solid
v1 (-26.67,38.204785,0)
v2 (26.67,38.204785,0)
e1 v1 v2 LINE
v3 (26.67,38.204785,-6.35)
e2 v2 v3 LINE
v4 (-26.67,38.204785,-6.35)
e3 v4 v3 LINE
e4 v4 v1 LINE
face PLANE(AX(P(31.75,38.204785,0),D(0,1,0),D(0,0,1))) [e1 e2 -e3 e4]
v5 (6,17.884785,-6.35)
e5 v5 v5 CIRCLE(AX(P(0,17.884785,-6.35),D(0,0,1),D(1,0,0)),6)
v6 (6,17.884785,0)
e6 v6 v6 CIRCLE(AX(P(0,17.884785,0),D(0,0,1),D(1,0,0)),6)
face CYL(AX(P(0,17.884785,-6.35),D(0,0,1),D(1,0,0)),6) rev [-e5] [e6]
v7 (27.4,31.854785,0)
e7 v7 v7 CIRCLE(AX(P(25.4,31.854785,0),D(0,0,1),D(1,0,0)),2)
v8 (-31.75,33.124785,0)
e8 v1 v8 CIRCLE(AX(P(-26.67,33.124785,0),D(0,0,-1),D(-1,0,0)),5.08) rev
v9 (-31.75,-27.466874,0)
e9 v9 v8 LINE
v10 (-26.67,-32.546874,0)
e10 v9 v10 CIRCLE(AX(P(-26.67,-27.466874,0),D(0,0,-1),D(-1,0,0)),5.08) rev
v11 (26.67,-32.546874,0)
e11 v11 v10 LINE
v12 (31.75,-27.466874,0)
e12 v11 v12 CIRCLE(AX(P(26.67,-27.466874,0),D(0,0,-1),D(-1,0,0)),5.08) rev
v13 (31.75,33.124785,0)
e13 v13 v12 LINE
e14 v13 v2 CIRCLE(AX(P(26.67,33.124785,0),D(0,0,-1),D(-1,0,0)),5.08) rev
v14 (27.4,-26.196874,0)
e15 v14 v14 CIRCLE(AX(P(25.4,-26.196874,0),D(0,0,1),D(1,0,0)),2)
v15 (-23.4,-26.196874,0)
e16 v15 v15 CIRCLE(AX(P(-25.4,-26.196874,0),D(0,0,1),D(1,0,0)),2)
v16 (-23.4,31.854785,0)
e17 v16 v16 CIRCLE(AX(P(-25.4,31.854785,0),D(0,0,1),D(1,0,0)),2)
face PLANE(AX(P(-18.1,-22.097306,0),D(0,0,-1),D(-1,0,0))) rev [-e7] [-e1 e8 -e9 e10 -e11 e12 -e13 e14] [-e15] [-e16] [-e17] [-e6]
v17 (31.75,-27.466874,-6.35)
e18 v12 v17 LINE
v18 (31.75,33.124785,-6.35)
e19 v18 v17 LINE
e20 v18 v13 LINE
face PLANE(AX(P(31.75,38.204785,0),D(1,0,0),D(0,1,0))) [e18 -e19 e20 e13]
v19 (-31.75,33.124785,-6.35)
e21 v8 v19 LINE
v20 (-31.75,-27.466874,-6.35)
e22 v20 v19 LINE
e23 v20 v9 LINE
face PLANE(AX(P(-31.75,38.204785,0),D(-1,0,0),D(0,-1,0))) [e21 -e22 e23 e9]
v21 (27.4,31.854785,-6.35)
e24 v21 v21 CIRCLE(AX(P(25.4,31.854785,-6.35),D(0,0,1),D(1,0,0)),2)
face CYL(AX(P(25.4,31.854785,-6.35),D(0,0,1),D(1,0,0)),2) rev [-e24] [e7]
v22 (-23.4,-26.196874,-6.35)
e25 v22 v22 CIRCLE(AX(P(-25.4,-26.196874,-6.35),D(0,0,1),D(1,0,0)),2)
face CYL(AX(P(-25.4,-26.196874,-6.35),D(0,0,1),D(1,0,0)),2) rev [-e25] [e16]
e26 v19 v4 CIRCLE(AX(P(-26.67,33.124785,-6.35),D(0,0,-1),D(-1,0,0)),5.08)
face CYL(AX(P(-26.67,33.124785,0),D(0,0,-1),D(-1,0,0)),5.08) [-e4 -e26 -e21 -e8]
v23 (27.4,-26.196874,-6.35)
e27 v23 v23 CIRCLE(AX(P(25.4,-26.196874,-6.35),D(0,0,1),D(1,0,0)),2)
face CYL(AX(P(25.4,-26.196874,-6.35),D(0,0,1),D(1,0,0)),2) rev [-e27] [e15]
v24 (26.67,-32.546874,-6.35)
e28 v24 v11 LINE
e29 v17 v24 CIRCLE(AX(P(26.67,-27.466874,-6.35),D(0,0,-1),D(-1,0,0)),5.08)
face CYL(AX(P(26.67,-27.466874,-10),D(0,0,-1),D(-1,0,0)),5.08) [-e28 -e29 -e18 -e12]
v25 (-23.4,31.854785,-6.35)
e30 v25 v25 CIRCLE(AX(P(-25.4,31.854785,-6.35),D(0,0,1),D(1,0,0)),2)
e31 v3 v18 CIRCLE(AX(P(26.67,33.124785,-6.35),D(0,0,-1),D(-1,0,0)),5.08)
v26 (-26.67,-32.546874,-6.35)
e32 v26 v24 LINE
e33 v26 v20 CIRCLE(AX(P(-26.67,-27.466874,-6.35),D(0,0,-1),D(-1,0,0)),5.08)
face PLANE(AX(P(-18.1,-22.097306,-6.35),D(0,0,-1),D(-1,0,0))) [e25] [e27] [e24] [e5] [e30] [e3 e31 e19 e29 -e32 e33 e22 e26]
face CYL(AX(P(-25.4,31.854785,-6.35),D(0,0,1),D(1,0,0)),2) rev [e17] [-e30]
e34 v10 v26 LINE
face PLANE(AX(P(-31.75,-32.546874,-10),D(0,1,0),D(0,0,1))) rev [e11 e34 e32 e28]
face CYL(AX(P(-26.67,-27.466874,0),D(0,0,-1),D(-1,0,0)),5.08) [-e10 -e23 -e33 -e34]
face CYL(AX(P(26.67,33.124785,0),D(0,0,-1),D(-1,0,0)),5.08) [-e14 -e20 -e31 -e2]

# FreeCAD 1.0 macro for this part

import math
import FreeCAD as App
import Part
import Sketcher
from FreeCAD import Vector
Q = App.Units.Quantity


def edges_at(feature, points):
    """Names of the edges that pass closest to the given points."""
    edges = feature.Shape.Edges
    near = lambda p: min(range(len(edges)), key=lambda i: edges[i].distToShape(Part.Vertex(*p))[0])
    return sorted({f"Edge{near(p) + 1}" for p in points})


def add_polygon(sketch, points):
    """Adds a closed chain of lines whose ends are joined by coincident constraints."""
    first, n = sketch.GeometryCount, len(points)
    for a, b in zip(points, points[1:] + points[:1]):
        sketch.addGeometry(Part.LineSegment(App.Vector(*a, 0), App.Vector(*b, 0)), False)
    for i in range(n):
        sketch.addConstraint(Sketcher.Constraint("Coincident", first + i, 2, first + (i + 1) % n, 1))

doc = App.newDocument("Part")
body = doc.addObject("PartDesign::Body", "Body")

# Sketch on XY plane
sketch1 = body.newObject("Sketcher::SketchObject", "Sketch")
sketch1.AttachmentSupport = (doc.getObject("XY_Plane"), [""])
sketch1.MapMode = "FlatFace"
sketch1.addGeometry([
    Part.LineSegment(Vector(-14.9, 29.8, 0), Vector(-19.7, 23.3, 0)),  # 0
    Part.ArcOfCircle(Part.Circle(Vector(-18.1, 22.1, 0), Vector(0, 0, 1), 2), math.radians(143), math.radians(180)),  # 1
    Part.LineSegment(Vector(-20.1, 22.1, 0), Vector(-20.1, -22.1, 0)),  # 2
    Part.ArcOfCircle(Part.Circle(Vector(-18.1, -22.1, 0), Vector(0, 0, 1), 2), math.radians(-180), math.radians(-143)),  # 3
    Part.LineSegment(Vector(-19.7, -23.3, 0), Vector(-14.9, -29.8, 0)),  # 4
    Part.ArcOfCircle(Part.Circle(Vector(-13.3, -28.5, 0), Vector(0, 0, 1), 2), math.radians(-143), math.radians(-90)),  # 5
    Part.LineSegment(Vector(-13.3, -30.6, 0), Vector(13.3, -30.6, 0)),  # 6
    Part.ArcOfCircle(Part.Circle(Vector(13.3, -28.5, 0), Vector(0, 0, 1), 2), math.radians(-90), math.radians(-37)),  # 7
    Part.LineSegment(Vector(14.9, -29.8, 0), Vector(19.7, -23.3, 0)),  # 8
    Part.ArcOfCircle(Part.Circle(Vector(18.1, -22.1, 0), Vector(0, 0, 1), 2), math.radians(-37), math.radians(0)),  # 9
    Part.LineSegment(Vector(20.1, -22.1, 0), Vector(20.1, 22.1, 0)),  # 10
    Part.ArcOfCircle(Part.Circle(Vector(18.1, 22.1, 0), Vector(0, 0, 1), 2), math.radians(0), math.radians(37)),  # 11
    Part.LineSegment(Vector(19.7, 23.3, 0), Vector(14.9, 29.8, 0)),  # 12
    Part.ArcOfCircle(Part.Circle(Vector(13.3, 28.5, 0), Vector(0, 0, 1), 2), math.radians(37), math.radians(90)),  # 13
    Part.LineSegment(Vector(13.3, 30.6, 0), Vector(-13.3, 30.6, 0)),  # 14
    Part.ArcOfCircle(Part.Circle(Vector(-13.3, 28.5, 0), Vector(0, 0, 1), 2), math.radians(90), math.radians(143)),  # 15
], False)
sketch1.addConstraint([
    Sketcher.Constraint("Tangent", 0, 2, 1, 1),
    Sketcher.Constraint("Tangent", 1, 2, 2, 1),
    Sketcher.Constraint("Tangent", 2, 2, 3, 1),
    Sketcher.Constraint("Tangent", 3, 2, 4, 1),
    Sketcher.Constraint("Tangent", 4, 2, 5, 1),
    Sketcher.Constraint("Tangent", 5, 2, 6, 1),
    Sketcher.Constraint("Tangent", 6, 2, 7, 1),
    Sketcher.Constraint("Tangent", 7, 2, 8, 1),
    Sketcher.Constraint("Tangent", 8, 2, 9, 1),
    Sketcher.Constraint("Tangent", 9, 2, 10, 1),
    Sketcher.Constraint("Tangent", 10, 2, 11, 1),
    Sketcher.Constraint("Tangent", 11, 2, 12, 1),
    Sketcher.Constraint("Tangent", 12, 2, 13, 1),
    Sketcher.Constraint("Tangent", 13, 2, 14, 1),
    Sketcher.Constraint("Tangent", 14, 2, 15, 1),
    Sketcher.Constraint("Tangent", 15, 2, 0, 1),
    Sketcher.Constraint("Vertical", 2),
    Sketcher.Constraint("Horizontal", 6),
    Sketcher.Constraint("Vertical", 10),
    Sketcher.Constraint("Horizontal", 14),
    Sketcher.Constraint("Equal", 1, 3),
    Sketcher.Constraint("Equal", 3, 5),
    Sketcher.Constraint("Equal", 5, 7),
    Sketcher.Constraint("Equal", 7, 9),
    Sketcher.Constraint("Equal", 9, 11),
    Sketcher.Constraint("Equal", 11, 13),
    Sketcher.Constraint("Equal", 13, 15),
    Sketcher.Constraint("Symmetric", 1, 3, 9, 3, -1, 1),
    Sketcher.Constraint("Symmetric", 5, 3, 13, 3, -1, 1),
    Sketcher.Constraint("Symmetric", 4, 2, 7, 2, -2),
    Sketcher.Constraint("Symmetric", 0, 2, 11, 2, -2),
    Sketcher.Constraint("Radius", 1, Q("2 mm")),
    Sketcher.Constraint("DistanceX", 6, 1, 6, 2, Q("26.50231 mm")),
    Sketcher.Constraint("DistanceX", 1, 3, -1, 1, Q("18.1 mm")),
    Sketcher.Constraint("DistanceY", 5, 3, -1, 1, Q("28.55 mm")),
    Sketcher.Constraint("DistanceX", 4, 2, 7, 3, Q("28.1012 mm")),
])
pad1 = body.newObject("PartDesign::Pad", "Pad")
pad1.Profile = sketch1
pad1.Length = Q("0.25 in")
pad1.Reversed = True

# Sketch on XY plane
sketch2 = body.newObject("Sketcher::SketchObject", "Sketch001")
sketch2.AttachmentSupport = (doc.getObject("XY_Plane"), [""])
sketch2.MapMode = "FlatFace"
sketch2.AttachmentOffset = App.Placement(Vector(0, 0, -0.25 * 25.4), App.Rotation())
sketch2.addGeometry([
    Part.Circle(Vector(-17.3, 21.9, 0), Vector(0, 0, 1), 1.4),  # 0
    Part.Circle(Vector(-17.3, -0.1, 0), Vector(0, 0, 1), 1.4),  # 1
    Part.Circle(Vector(-17.3, -22.1, 0), Vector(0, 0, 1), 1.4),  # 2
    Part.Circle(Vector(-11, -27.8, 0), Vector(0, 0, 1), 1.4),  # 3
    Part.Circle(Vector(11, -27.8, 0), Vector(0, 0, 1), 1.4),  # 4
    Part.Circle(Vector(17.3, -22.1, 0), Vector(0, 0, 1), 1.4),  # 5
    Part.Circle(Vector(17.3, -0.1, 0), Vector(0, 0, 1), 1.4),  # 6
    Part.Circle(Vector(17.3, 21.9, 0), Vector(0, 0, 1), 1.4),  # 7
], False)
sketch2.addConstraint([
    Sketcher.Constraint("Equal", 0, 1),
    Sketcher.Constraint("Equal", 1, 2),
    Sketcher.Constraint("Equal", 3, 4),
    Sketcher.Constraint("Equal", 2, 5),
    Sketcher.Constraint("Equal", 5, 6),
    Sketcher.Constraint("Equal", 6, 7),
    Sketcher.Constraint("Symmetric", 3, 3, 4, 3, -2),
    Sketcher.Constraint("Symmetric", 2, 3, 5, 3, -2),
    Sketcher.Constraint("Symmetric", 1, 3, 6, 3, -2),
    Sketcher.Constraint("Symmetric", 0, 3, 7, 3, -2),
    Sketcher.Constraint("Vertical", 0, 3, 1, 3),
    Sketcher.Constraint("Vertical", 1, 3, 2, 3),
    Sketcher.Constraint("Diameter", 0, Q("2.7 mm")),
    Sketcher.Constraint("Diameter", 3, Q("2.77 mm")),
    Sketcher.Constraint("DistanceX", 0, 3, -1, 1, Q("17.3 mm")),
    Sketcher.Constraint("DistanceX", 3, 3, -1, 1, Q("11 mm")),
    Sketcher.Constraint("DistanceY", 3, 3, -1, 1, Q("27.75 mm")),
    Sketcher.Constraint("DistanceY", 1, 3, 0, 3, Q("22 mm")),
    Sketcher.Constraint("DistanceY", 2, 3, 1, 3, Q("22 mm")),
    Sketcher.Constraint("DistanceY", -1, 1, 0, 3, Q("21.948784 mm")),
])
pocket1 = body.newObject("PartDesign::Pocket", "Pocket")
pocket1.Profile = sketch2
pocket1.Type = "ThroughAll"
pocket1.Reversed = True

# Sketch on XY plane
sketch3 = body.newObject("Sketcher::SketchObject", "Sketch002")
sketch3.AttachmentSupport = (doc.getObject("XY_Plane"), [""])
sketch3.MapMode = "FlatFace"
sketch3.AttachmentOffset = App.Placement(Vector(0, 0, -0.25 * 25.4), App.Rotation())
add_polygon(sketch3, [(32, 38), (32, -33), (-32, -33), (-32, 38)])  # lines 0-3
add_polygon(sketch3, [(-19, -24), (19, -24), (19, 24), (-19, 24)])  # lines 4-7
sketch3.addConstraint([
    Sketcher.Constraint("Vertical", 0),
    Sketcher.Constraint("Horizontal", 1),
    Sketcher.Constraint("Vertical", 2),
    Sketcher.Constraint("Horizontal", 3),
    Sketcher.Constraint("Horizontal", 4),
    Sketcher.Constraint("Vertical", 5),
    Sketcher.Constraint("Horizontal", 6),
    Sketcher.Constraint("Vertical", 7),
    Sketcher.Constraint("Symmetric", 4, 2, 6, 2, -1, 1),
    Sketcher.Constraint("DistanceX", 1, 2, 1, 1, Q("2.5 in")),
    Sketcher.Constraint("DistanceY", 0, 2, 0, 1, Q("2.8 in")),
    Sketcher.Constraint("DistanceX", -1, 1, 0, 2, Q("1.25 in")),
    Sketcher.Constraint("DistanceY", 5, 1, 5, 2, Q("47.23754 mm")),
    Sketcher.Constraint("DistanceX", 4, 1, 4, 2, Q("38.321076 mm")),
    Sketcher.Constraint("DistanceY", 0, 2, -1, 1, Q("32.915216 mm")),
])
pad2 = body.newObject("PartDesign::Pad", "Pad001")
pad2.Profile = sketch3
pad2.Length = Q("0.25 in")

# Sketch on XY plane
sketch4 = body.newObject("Sketcher::SketchObject", "Sketch003")
sketch4.AttachmentSupport = (doc.getObject("XY_Plane"), [""])
sketch4.MapMode = "FlatFace"
add_polygon(sketch4, [(-14, 31), (-14, -25), (14, -25), (14, 31)])  # lines 0-3
sketch4.addConstraint([
    Sketcher.Constraint("Vertical", 0),
    Sketcher.Constraint("Horizontal", 1),
    Sketcher.Constraint("Vertical", 2),
    Sketcher.Constraint("Horizontal", 3),
    Sketcher.Constraint("DistanceX", 1, 1, 1, 2, Q("1.1 in")),
    Sketcher.Constraint("DistanceY", 0, 2, 0, 1, Q("2.2 in")),
    Sketcher.Constraint("DistanceX", 0, 2, -1, 1, Q("0.55 in")),
    Sketcher.Constraint("DistanceY", 0, 2, -1, 1, Q("24.931216 mm")),
])
pocket2 = body.newObject("PartDesign::Pocket", "Pocket001")
pocket2.Profile = sketch4
pocket2.Type = "ThroughAll"

# Sketch on XY plane
sketch5 = body.newObject("Sketcher::SketchObject", "Sketch004")
sketch5.AttachmentSupport = (doc.getObject("XY_Plane"), [""])
sketch5.MapMode = "FlatFace"
add_polygon(sketch5, [(-31.75, -32.55), (-31.75, -32.92), (38.1, -32.92), (38.1, -32.55)])  # lines 0-3
sketch5.addConstraint([
    Sketcher.Constraint("Vertical", 0),
    Sketcher.Constraint("Horizontal", 1),
    Sketcher.Constraint("Vertical", 2),
    Sketcher.Constraint("Horizontal", 3),
    Sketcher.Constraint("DistanceX", 1, 1, 1, 2, Q("2.75 in")),
    Sketcher.Constraint("DistanceX", -1, 1, 1, 2, Q("1.5 in")),
    Sketcher.Constraint("DistanceY", 0, 2, 0, 1, Q("0.368342 mm")),
    Sketcher.Constraint("DistanceY", 0, 2, -1, 1, Q("32.915216 mm")),
])
pocket3 = body.newObject("PartDesign::Pocket", "Pocket002")
pocket3.Profile = sketch5
pocket3.Length = 10

# Sketch on XY plane
sketch6 = body.newObject("Sketcher::SketchObject", "Sketch005")
sketch6.AttachmentSupport = (doc.getObject("XY_Plane"), [""])
sketch6.MapMode = "FlatFace"
sketch6.addGeometry([
    Part.Circle(Vector(25.4, 31.9, 0), Vector(0, 0, 1), 2),
    Part.Circle(Vector(-25.4, 31.9, 0), Vector(0, 0, 1), 2),
    Part.Circle(Vector(-25.4, -26.2, 0), Vector(0, 0, 1), 2),
    Part.Circle(Vector(25.4, -26.2, 0), Vector(0, 0, 1), 2),
], False)
sketch6.addConstraint([
    Sketcher.Constraint("Equal", 0, 1),
    Sketcher.Constraint("Equal", 1, 2),
    Sketcher.Constraint("Equal", 2, 3),
    Sketcher.Constraint("Symmetric", 0, 3, 1, 3, -2),
    Sketcher.Constraint("Symmetric", 2, 3, 3, 3, -2),
    Sketcher.Constraint("Vertical", 1, 3, 2, 3),
    Sketcher.Constraint("DistanceX", -1, 1, 0, 3, Q("1 in")),
    Sketcher.Constraint("Diameter", 0, Q("4 mm")),
    Sketcher.Constraint("DistanceY", 2, 3, 1, 3, Q("58.051658 mm")),
    Sketcher.Constraint("DistanceY", -1, 1, 0, 3, Q("31.854785 mm")),
])
pocket4 = body.newObject("PartDesign::Pocket", "Pocket003")
pocket4.Profile = sketch6
pocket4.Type = "ThroughAll"

# Sketch on XY plane
sketch7 = body.newObject("Sketcher::SketchObject", "Sketch006")
sketch7.AttachmentSupport = (doc.getObject("XY_Plane"), [""])
sketch7.MapMode = "FlatFace"
sketch7.AttachmentOffset = App.Placement(Vector(0, 0, -0.25 * 25.4), App.Rotation())
add_polygon(sketch7, [(21, 32), (21, -28), (-21, -28), (-21, 32)])  # lines 0-3
sketch7.addConstraint([
    Sketcher.Constraint("Vertical", 0),
    Sketcher.Constraint("Horizontal", 1),
    Sketcher.Constraint("Vertical", 2),
    Sketcher.Constraint("Horizontal", 3),
    Sketcher.Constraint("DistanceY", -1, 1, 2, 2, Q("32.039599 mm")),
    Sketcher.Constraint("DistanceX", 1, 2, 1, 1, Q("41.322373 mm")),
    Sketcher.Constraint("DistanceY", 0, 2, 0, 1, Q("59.668082 mm")),
    Sketcher.Constraint("DistanceX", -1, 1, 0, 2, Q("20.661187 mm")),
])
pad3 = body.newObject("PartDesign::Pad", "Pad002")
pad3.Profile = sketch7
pad3.Length = Q("0.25 in")

# Sketch on XY plane
sketch8 = body.newObject("Sketcher::SketchObject", "Sketch007")
sketch8.AttachmentSupport = (doc.getObject("XY_Plane"), [""])
sketch8.MapMode = "FlatFace"
sketch8.addGeometry(Part.Circle(Vector(0, 18, 0), Vector(0, 0, 1), 6), False)
sketch8.addConstraint([
    Sketcher.Constraint("PointOnObject", 0, 3, -2),
    Sketcher.Constraint("Diameter", 0, Q("12 mm")),
    Sketcher.Constraint("DistanceY", -1, 1, 0, 3, Q("17.884784 mm")),
])
pocket5 = body.newObject("PartDesign::Pocket", "Pocket004")
pocket5.Profile = sketch8
pocket5.Type = "ThroughAll"
doc.recompute()

fillet = body.newObject("PartDesign::Fillet", "Fillet")
fillet.Base = (pocket5, edges_at(pocket5, [(-31.75, 38.205, -3.175)]))
fillet.Radius = Q("0.2 in")
doc.recompute()

fillet2 = body.newObject("PartDesign::Fillet", "Fillet001")
fillet2.Base = (fillet, edges_at(fillet, [(31.75, -32.547, -3.175), (31.75, 38.205, -3.175)]))
fillet2.Radius = Q("0.2 in")
doc.recompute()

fillet3 = body.newObject("PartDesign::Fillet", "Fillet002")
fillet3.Base = (fillet2, edges_at(fillet2, [(-31.75, -32.547, -3.175)]))
fillet3.Radius = Q("0.2 in")

doc.recompute()
